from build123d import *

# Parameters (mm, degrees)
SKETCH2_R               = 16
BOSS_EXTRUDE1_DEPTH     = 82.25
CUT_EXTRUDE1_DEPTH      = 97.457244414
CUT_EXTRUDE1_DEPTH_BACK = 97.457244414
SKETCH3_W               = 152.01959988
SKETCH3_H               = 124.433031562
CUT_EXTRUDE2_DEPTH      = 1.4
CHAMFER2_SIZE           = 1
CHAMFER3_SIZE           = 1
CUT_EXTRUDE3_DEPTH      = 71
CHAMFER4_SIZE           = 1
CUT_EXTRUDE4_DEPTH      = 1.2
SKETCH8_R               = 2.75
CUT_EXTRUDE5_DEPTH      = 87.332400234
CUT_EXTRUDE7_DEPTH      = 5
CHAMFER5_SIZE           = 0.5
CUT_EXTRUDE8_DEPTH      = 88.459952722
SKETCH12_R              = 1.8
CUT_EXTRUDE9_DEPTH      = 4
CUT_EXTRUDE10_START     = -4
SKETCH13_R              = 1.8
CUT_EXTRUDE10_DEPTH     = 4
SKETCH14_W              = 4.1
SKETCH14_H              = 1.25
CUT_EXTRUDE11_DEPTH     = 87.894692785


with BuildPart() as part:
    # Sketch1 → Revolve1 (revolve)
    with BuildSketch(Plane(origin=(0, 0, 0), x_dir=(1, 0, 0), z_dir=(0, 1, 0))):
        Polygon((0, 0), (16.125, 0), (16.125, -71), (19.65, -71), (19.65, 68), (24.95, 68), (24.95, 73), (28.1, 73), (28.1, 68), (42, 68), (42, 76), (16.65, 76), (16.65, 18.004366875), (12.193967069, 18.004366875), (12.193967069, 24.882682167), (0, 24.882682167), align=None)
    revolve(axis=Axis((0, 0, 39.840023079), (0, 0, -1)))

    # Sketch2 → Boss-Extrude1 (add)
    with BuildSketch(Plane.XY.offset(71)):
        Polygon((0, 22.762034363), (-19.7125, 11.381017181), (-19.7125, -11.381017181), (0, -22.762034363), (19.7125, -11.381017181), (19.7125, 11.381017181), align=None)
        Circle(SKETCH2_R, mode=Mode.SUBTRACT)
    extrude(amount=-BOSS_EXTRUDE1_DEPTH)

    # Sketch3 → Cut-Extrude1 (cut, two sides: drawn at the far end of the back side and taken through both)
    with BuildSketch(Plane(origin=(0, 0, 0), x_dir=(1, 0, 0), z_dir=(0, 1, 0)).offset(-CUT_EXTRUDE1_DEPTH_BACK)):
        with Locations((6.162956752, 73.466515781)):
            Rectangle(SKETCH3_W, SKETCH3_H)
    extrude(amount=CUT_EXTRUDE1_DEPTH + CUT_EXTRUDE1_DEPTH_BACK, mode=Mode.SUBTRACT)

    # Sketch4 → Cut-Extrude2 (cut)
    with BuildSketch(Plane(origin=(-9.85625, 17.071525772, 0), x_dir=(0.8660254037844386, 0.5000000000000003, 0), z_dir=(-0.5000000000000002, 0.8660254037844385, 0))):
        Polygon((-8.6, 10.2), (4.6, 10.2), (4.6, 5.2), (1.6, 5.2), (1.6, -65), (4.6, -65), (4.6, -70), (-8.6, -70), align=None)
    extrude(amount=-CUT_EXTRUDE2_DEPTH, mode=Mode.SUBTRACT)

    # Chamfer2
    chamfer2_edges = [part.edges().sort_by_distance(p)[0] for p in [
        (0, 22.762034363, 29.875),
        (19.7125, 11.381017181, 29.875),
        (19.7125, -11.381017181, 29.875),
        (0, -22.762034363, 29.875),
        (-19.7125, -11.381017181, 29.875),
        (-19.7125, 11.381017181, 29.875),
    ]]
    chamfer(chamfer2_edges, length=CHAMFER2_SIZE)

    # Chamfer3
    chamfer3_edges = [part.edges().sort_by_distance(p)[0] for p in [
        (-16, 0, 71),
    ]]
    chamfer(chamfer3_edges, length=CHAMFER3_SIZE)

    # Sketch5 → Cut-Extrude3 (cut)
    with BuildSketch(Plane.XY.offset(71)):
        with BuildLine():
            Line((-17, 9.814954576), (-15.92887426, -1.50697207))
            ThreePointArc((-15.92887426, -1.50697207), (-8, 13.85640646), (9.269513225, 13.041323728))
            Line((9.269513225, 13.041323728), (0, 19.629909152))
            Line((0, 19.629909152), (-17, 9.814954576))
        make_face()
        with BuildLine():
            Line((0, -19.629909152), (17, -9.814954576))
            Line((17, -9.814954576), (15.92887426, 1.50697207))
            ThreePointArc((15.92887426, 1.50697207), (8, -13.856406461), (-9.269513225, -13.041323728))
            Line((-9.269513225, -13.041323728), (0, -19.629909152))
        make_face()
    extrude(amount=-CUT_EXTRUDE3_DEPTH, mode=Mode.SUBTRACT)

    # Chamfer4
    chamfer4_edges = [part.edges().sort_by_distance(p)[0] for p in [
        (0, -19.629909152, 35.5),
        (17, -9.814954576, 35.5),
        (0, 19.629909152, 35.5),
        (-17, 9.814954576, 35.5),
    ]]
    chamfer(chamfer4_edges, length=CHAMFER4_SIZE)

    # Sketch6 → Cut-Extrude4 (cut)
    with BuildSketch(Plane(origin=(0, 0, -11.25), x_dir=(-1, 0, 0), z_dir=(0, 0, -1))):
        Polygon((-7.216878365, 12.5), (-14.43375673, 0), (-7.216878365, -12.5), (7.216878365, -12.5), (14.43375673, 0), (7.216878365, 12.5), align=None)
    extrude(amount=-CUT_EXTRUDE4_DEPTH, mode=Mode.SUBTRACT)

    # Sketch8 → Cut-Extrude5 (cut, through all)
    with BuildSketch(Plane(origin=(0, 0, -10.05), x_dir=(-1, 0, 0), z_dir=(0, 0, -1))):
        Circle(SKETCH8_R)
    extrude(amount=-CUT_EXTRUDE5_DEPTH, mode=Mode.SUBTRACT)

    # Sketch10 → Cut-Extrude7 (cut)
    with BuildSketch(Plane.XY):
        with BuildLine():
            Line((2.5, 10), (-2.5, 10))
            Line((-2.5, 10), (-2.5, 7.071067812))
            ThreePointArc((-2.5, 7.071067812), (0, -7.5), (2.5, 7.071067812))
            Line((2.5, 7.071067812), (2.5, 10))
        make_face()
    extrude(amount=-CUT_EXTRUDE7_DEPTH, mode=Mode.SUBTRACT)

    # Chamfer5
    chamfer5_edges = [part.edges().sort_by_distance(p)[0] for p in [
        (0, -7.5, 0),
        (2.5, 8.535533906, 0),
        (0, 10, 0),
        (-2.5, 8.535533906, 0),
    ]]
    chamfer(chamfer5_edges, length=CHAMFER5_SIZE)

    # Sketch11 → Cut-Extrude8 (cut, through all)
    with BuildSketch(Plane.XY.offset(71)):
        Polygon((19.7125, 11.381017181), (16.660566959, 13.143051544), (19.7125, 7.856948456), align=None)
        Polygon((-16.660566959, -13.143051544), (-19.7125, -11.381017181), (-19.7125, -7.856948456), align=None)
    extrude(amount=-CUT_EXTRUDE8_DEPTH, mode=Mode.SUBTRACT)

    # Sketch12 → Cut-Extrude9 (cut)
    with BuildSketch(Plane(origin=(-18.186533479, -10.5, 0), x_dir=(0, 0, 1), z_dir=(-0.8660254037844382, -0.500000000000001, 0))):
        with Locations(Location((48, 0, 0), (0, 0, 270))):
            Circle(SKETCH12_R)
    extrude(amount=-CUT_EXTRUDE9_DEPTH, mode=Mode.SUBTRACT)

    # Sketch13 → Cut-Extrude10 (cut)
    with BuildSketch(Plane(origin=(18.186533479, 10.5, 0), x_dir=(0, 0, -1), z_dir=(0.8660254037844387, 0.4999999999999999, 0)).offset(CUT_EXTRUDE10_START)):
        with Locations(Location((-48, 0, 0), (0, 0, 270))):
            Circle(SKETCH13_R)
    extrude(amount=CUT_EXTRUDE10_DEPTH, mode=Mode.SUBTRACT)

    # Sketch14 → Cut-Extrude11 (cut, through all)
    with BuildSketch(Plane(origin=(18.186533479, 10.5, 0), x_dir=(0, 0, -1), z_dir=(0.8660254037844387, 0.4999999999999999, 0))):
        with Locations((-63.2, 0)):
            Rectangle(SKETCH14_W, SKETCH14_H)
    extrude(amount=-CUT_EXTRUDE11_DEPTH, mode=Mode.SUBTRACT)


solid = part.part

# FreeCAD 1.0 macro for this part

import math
import FreeCAD as App
import Part
import Sketcher

V = App.Vector
Q = App.Units.Quantity


def edges_at(feature, points):
    """Names of the edges that pass closest to the given points."""
    edges = feature.Shape.Edges
    near = lambda p: min(range(len(edges)), key=lambda i: edges[i].distToShape(Part.Vertex(*p))[0])
    return sorted({f"Edge{near(p) + 1}" for p in points})


def add_polygon(sketch, points):
    """Adds a closed chain of lines whose ends are joined by coincident constraints."""
    first, n = sketch.GeometryCount, len(points)
    for a, b in zip(points, points[1:] + points[:1]):
        sketch.addGeometry(Part.LineSegment(App.Vector(*a, 0), App.Vector(*b, 0)), False)
    for i in range(n):
        sketch.addConstraint(Sketcher.Constraint("Coincident", first + i, 2, first + (i + 1) % n, 1))

doc = App.newDocument("Part")
params = doc.addObject("Spreadsheet::Sheet", "Params")
for row, (alias, value) in enumerate([
    ("sketch1_height", "71 mm"),
    ("sketch1_height2", "139 mm"),
    ("sketch1_height3", "5 mm"),
    ("sketch1_height4", "8 mm"),
    ("sketch1_width", "5.3 mm"),
    ("revolution_angle", "360 deg"),
    ("sketch2_diameter", "32 mm"),
    ("pad1_length", "82.25 mm"),
    ("sketch4_width", "3 mm"),
    ("sketch4_height", "5 mm"),
    ("sketch4_width2", "13.2 mm"),
    ("sketch4_height2", "80.2 mm"),
    ("pocket2_length", "1.4 mm"),
    ("chamfer_size", "1 mm"),
    ("chamfer2_size", "1 mm"),
    ("sketch5_radius", "16 mm"),
    ("pocket3_length", "71 mm"),
    ("chamfer3_size", "1 mm"),
    ("pocket4_length", "1.2 mm"),
    ("sketch7_diameter", "5.5 mm"),
    ("sketch8_radius", "7.5 mm"),
    ("sketch8_width", "5 mm"),
    ("pocket6_length", "5 mm"),
    ("chamfer4_size", "0.5 mm"),
    ("sketch10_diameter", "3.6 mm"),
    ("pocket8_length", "4 mm"),
    ("sketch11_diameter", "3.6 mm"),
    ("pocket9_length", "4 mm"),
    ("sketch12_width", "4.1 mm"),
    ("sketch12_height", "1.25 mm"),
], start=1):
    params.set(f"A{row}", alias)
    params.set(f"B{row}", "=" + value)
    params.setAlias(f"B{row}", alias)

body = doc.addObject("PartDesign::Body", "Body")

# Sketch on XZ plane
sketch1 = body.newObject("Sketcher::SketchObject", "Sketch")
sketch1.AttachmentSupport = (doc.getObject("XZ_Plane"), [""])
sketch1.MapMode = "FlatFace"
add_polygon(sketch1, [(0, 0), (16.1, 0), (16.1, 71), (19.6, 71), (19.6, -68), (24.9, -68), (24.9, -73), (28.1, -73), (28.1, -68), (42, -68), (42, -76), (16.6, -76), (16.6, -18), (12.2, -18), (12.2, -24.9), (0, -24.9)])  # lines 0-15
sketch1.addConstraint(Sketcher.Constraint("Horizontal", 0))
sketch1.addConstraint(Sketcher.Constraint("Vertical", 1))
sketch1.addConstraint(Sketcher.Constraint("Horizontal", 2))
sketch1.addConstraint(Sketcher.Constraint("Vertical", 3))
sketch1.addConstraint(Sketcher.Constraint("Horizontal", 4))
sketch1.addConstraint(Sketcher.Constraint("Vertical", 5))
sketch1.addConstraint(Sketcher.Constraint("Horizontal", 6))
sketch1.addConstraint(Sketcher.Constraint("Vertical", 7))
sketch1.addConstraint(Sketcher.Constraint("Horizontal", 8))
sketch1.addConstraint(Sketcher.Constraint("Vertical", 9))
sketch1.addConstraint(Sketcher.Constraint("Horizontal", 10))
sketch1.addConstraint(Sketcher.Constraint("Vertical", 11))
sketch1.addConstraint(Sketcher.Constraint("Horizontal", 12))
sketch1.addConstraint(Sketcher.Constraint("Vertical", 13))
sketch1.addConstraint(Sketcher.Constraint("Horizontal", 14))
sketch1.addConstraint(Sketcher.Constraint("Vertical", 15))
sketch1.addConstraint(Sketcher.Constraint("Coincident", 15, 2, -1, 1))
sketch1.addConstraint(Sketcher.Constraint("Horizontal", 4, 2, 7, 2))
sketch1.addConstraint(Sketcher.Constraint("DistanceY", 1, 1, 1, 2, 71.0))
sketch1.addConstraint(Sketcher.Constraint("DistanceY", 3, 2, 3, 1, 139.0))
sketch1.addConstraint(Sketcher.Constraint("DistanceY", 5, 2, 5, 1, 5.0))
sketch1.addConstraint(Sketcher.Constraint("DistanceY", 9, 2, 9, 1, 8.0))
sketch1.addConstraint(Sketcher.Constraint("DistanceX", 4, 1, 4, 2, 5.3))
sketch1.addConstraint(Sketcher.Constraint("DistanceX", 8, 1, 8, 2, 13.9))
sketch1.addConstraint(Sketcher.Constraint("DistanceX", -1, 1, 8, 2, 42.0))
sketch1.addConstraint(Sketcher.Constraint("DistanceX", 10, 2, 3, 2, 3.0))
sketch1.addConstraint(Sketcher.Constraint("DistanceX", 6, 1, 6, 2, 3.15))
sketch1.addConstraint(Sketcher.Constraint("DistanceX", 0, 1, 0, 2, 16.125))
sketch1.addConstraint(Sketcher.Constraint("DistanceX", 12, 2, 12, 1, 4.456033))
sketch1.addConstraint(Sketcher.Constraint("DistanceY", 11, 1, 11, 2, 57.995633))
sketch1.addConstraint(Sketcher.Constraint("DistanceY", 13, 2, 13, 1, 6.878315))
sketch1.setExpression("Constraints[34]", "Params.sketch1_height")
sketch1.setExpression("Constraints[35]", "Params.sketch1_height2")
sketch1.setExpression("Constraints[36]", "Params.sketch1_height3")
sketch1.setExpression("Constraints[37]", "Params.sketch1_height4")
sketch1.setExpression("Constraints[38]", "Params.sketch1_width")
revolution = body.newObject("PartDesign::Revolution", "Revolution")
revolution.Profile = sketch1
revolution.ReferenceAxis = (sketch1, ["V_Axis"])
revolution.setExpression("Angle", "Params.revolution_angle")

# Sketch on XY plane
sketch2 = body.newObject("Sketcher::SketchObject", "Sketch001")
sketch2.AttachmentSupport = (doc.getObject("XY_Plane"), [""])
sketch2.MapMode = "FlatFace"
sketch2.AttachmentOffset = App.Placement(V(0, 0, 71), App.Rotation())
add_polygon(sketch2, [(0, 23), (-20, 11), (-20, -11), (0, -23), (20, -11), (20, 11)])  # lines 0-5
sketch2.addGeometry(Part.Circle(V(0, 0, 0), V(0, 0, 1), 16), False)  # 6
sketch2.addConstraint(Sketcher.Constraint("Vertical", 1))
sketch2.addConstraint(Sketcher.Constraint("Vertical", 4))
sketch2.addConstraint(Sketcher.Constraint("Coincident", 6, 3, -1, 1))
sketch2.addConstraint(Sketcher.Constraint("Symmetric", 0, 2, 3, 2, -1, 1))
sketch2.addConstraint(Sketcher.Constraint("Symmetric", 2, 2, 5, 2, -1, 1))
sketch2.addConstraint(Sketcher.Constraint("PointOnObject", 2, 2, -2))
sketch2.addConstraint(Sketcher.Constraint("Parallel", 2, 5))
sketch2.addConstraint(Sketcher.Constraint("Horizontal", 1, 2, 3, 2))
sketch2.addConstraint(Sketcher.Constraint("Diameter", 6, 32.0))
sketch2.addConstraint(Sketcher.Constraint("Angle", 0, Q("-150 deg")))
sketch2.addConstraint(Sketcher.Constraint("DistanceX", 1, 2, 3, 2, 39.425))
sketch2.addConstraint(Sketcher.Constraint("DistanceY", 1, 2, 1, 1, 22.762034))
sketch2.setExpression("Constraints[14]", "Params.sketch2_diameter")
pad1 = body.newObject("PartDesign::Pad", "Pad")
pad1.Profile = sketch2
pad1.setExpression("Length", "Params.pad1_length")
pad1.Reversed = True

# Sketch on XZ plane
sketch3 = body.newObject("Sketcher::SketchObject", "Sketch002")
sketch3.AttachmentSupport = (doc.getObject("XZ_Plane"), [""])
sketch3.MapMode = "FlatFace"
add_polygon(sketch3, [(-70, -136), (-70, -11), (82, -11), (82, -136)])  # lines 0-3
sketch3.addConstraint(Sketcher.Constraint("Vertical", 0))
sketch3.addConstraint(Sketcher.Constraint("Horizontal", 1))
sketch3.addConstraint(Sketcher.Constraint("Vertical", 2))
sketch3.addConstraint(Sketcher.Constraint("Horizontal", 3))
sketch3.addConstraint(Sketcher.Constraint("DistanceY", 0, 2, -1, 1, 11.25))
sketch3.addConstraint(Sketcher.Constraint("DistanceX", 1, 1, 1, 2, 152.0196))
sketch3.addConstraint(Sketcher.Constraint("DistanceY", 0, 1, 0, 2, 124.433032))
sketch3.addConstraint(Sketcher.Constraint("DistanceX", 0, 2, -1, 1, 69.846843))
pocket1 = body.newObject("PartDesign::Pocket", "Pocket")
pocket1.Profile = sketch3
pocket1.Type = "ThroughAll"
pocket1.Midplane = True

# Sketch on an angled plane
sketch4 = body.newObject("Sketcher::SketchObject", "Sketch003")
sketch4.Placement = App.Placement(V(-9.85625, 17.071526, 0), App.Rotation(V(0.866025404, 0.5, 0), V(0, 0, -1), V(-0.5, 0.866025404, 0), "ZXY"))
add_polygon(sketch4, [(4.6, 10.2), (-8.6, 10.2), (-8.6, -70), (4.6, -70), (4.6, -65), (1.6, -65), (1.6, 5.2), (4.6, 5.2)])  # lines 0-7
sketch4.addConstraint(Sketcher.Constraint("Horizontal", 0))
sketch4.addConstraint(Sketcher.Constraint("Vertical", 1))
sketch4.addConstraint(Sketcher.Constraint("Horizontal", 2))
sketch4.addConstraint(Sketcher.Constraint("Vertical", 3))
sketch4.addConstraint(Sketcher.Constraint("Horizontal", 4))
sketch4.addConstraint(Sketcher.Constraint("Vertical", 5))
sketch4.addConstraint(Sketcher.Constraint("Horizontal", 6))
sketch4.addConstraint(Sketcher.Constraint("Vertical", 7))
sketch4.addConstraint(Sketcher.Constraint("Vertical", 3, 2, 6, 2))
sketch4.addConstraint(Sketcher.Constraint("Equal", 3, 7))
sketch4.addConstraint(Sketcher.Constraint("DistanceX", 4, 2, 4, 1, 3.0))
sketch4.addConstraint(Sketcher.Constraint("DistanceY", 3, 1, 3, 2, 5.0))
sketch4.addConstraint(Sketcher.Constraint("DistanceX", 0, 2, 0, 1, 13.2))
sketch4.addConstraint(Sketcher.Constraint("DistanceY", 1, 2, 1, 1, 80.2))
sketch4.addConstraint(Sketcher.Constraint("DistanceY", 1, 2, -1, 1, 70.0))
sketch4.addConstraint(Sketcher.Constraint("DistanceX", 0, 2, -1, 1, 8.6))
sketch4.setExpression("Constraints[18]", "Params.sketch4_width")
sketch4.setExpression("Constraints[19]", "Params.sketch4_height")
sketch4.setExpression("Constraints[20]", "Params.sketch4_width2")
sketch4.setExpression("Constraints[21]", "Params.sketch4_height2")
pocket2 = body.newObject("PartDesign::Pocket", "Pocket001")
pocket2.Profile = sketch4
pocket2.setExpression("Length", "Params.pocket2_length")
doc.recompute()

chamfer = body.newObject("PartDesign::Chamfer", "Chamfer")
chamfer.Base = (pocket2, edges_at(pocket2, [
    (0, 22.762, 29.875),
    (19.712, 11.381, 29.875),
    (19.712, -11.381, 29.875),
    (0, -22.762, 29.875),
    (-19.712, -11.381, 29.875),
    (-19.712, 11.381, 29.875),
]))
chamfer.setExpression("Size", "Params.chamfer_size")
doc.recompute()

chamfer2 = body.newObject("PartDesign::Chamfer", "Chamfer001")
chamfer2.Base = (chamfer, edges_at(chamfer, [(-16, 0, 71)]))
chamfer2.setExpression("Size", "Params.chamfer2_size")

# Sketch on XY plane
sketch5 = body.newObject("Sketcher::SketchObject", "Sketch004")
sketch5.AttachmentSupport = (doc.getObject("XY_Plane"), [""])
sketch5.MapMode = "FlatFace"
sketch5.AttachmentOffset = App.Placement(V(0, 0, 71), App.Rotation())
sketch5.addGeometry(Part.LineSegment(V(-17, 10, 0), V(-16, -2, 0)), False)
sketch5.addGeometry(Part.ArcOfCircle(Part.Circle(V(0, 0, 0), V(0, 0, 1), 16), math.radians(55), math.radians(185)), False)
sketch5.addGeometry(Part.LineSegment(V(9, 13, 0), V(0, 20, 0)), False)
sketch5.addGeometry(Part.LineSegment(V(0, 20, 0), V(-17, 10, 0)), False)
sketch5.addGeometry(Part.LineSegment(V(0, -20, 0), V(17, -10, 0)), False)
sketch5.addGeometry(Part.LineSegment(V(17, -10, 0), V(16, 2, 0)), False)
sketch5.addGeometry(Part.ArcOfCircle(Part.Circle(V(0, 0, 0), V(0, 0, 1), 16), math.radians(-125), math.radians(5)), False)
sketch5.addGeometry(Part.LineSegment(V(-9, -13, 0), V(0, -20, 0)), False)
sketch5.addConstraint(Sketcher.Constraint("Tangent", 0, 2, 1, 2))
sketch5.addConstraint(Sketcher.Constraint("Tangent", 1, 1, 2, 1))
sketch5.addConstraint(Sketcher.Constraint("Coincident", 2, 2, 3, 1))
sketch5.addConstraint(Sketcher.Constraint("Coincident", 3, 2, 0, 1))
sketch5.addConstraint(Sketcher.Constraint("Coincident", 4, 2, 5, 1))
sketch5.addConstraint(Sketcher.Constraint("Tangent", 5, 2, 6, 2))
sketch5.addConstraint(Sketcher.Constraint("Tangent", 6, 1, 7, 1))
sketch5.addConstraint(Sketcher.Constraint("Coincident", 7, 2, 4, 1))
sketch5.addConstraint(Sketcher.Constraint("Coincident", 1, 3, -1, 1))
sketch5.addConstraint(Sketcher.Constraint("Coincident", 6, 3, -1, 1))
sketch5.addConstraint(Sketcher.Constraint("Equal", 1, 6))
sketch5.addConstraint(Sketcher.Constraint("Symmetric", 3, 2, 4, 2, -1, 1))
sketch5.addConstraint(Sketcher.Constraint("Symmetric", 2, 2, 7, 2, -1, 1))
sketch5.addConstraint(Sketcher.Constraint("PointOnObject", 2, 2, -2))
sketch5.addConstraint(Sketcher.Constraint("Equal", 0, 2))
sketch5.addConstraint(Sketcher.Constraint("Radius", 1, 16.0))
sketch5.addConstraint(Sketcher.Constraint("Angle", 3, Q("-150 deg")))
sketch5.addConstraint(Sketcher.Constraint("DistanceX", 3, 2, -1, 1, 17.0))
sketch5.setExpression("Constraints[15]", "Params.sketch5_radius")
pocket3 = body.newObject("PartDesign::Pocket", "Pocket002")
pocket3.Profile = sketch5
pocket3.setExpression("Length", "Params.pocket3_length")
doc.recompute()

chamfer3 = body.newObject("PartDesign::Chamfer", "Chamfer002")
chamfer3.Base = (pocket3, edges_at(pocket3, [
    (0, -19.63, 35.5),
    (17, -9.815, 35.5),
    (0, 19.63, 35.5),
    (-17, 9.815, 35.5),
]))
chamfer3.setExpression("Size", "Params.chamfer3_size")

# Sketch on XY plane
sketch6 = body.newObject("Sketcher::SketchObject", "Sketch005")
sketch6.AttachmentSupport = (doc.getObject("XY_Plane"), [""])
sketch6.MapMode = "FlatFace"
sketch6.AttachmentOffset = App.Placement(V(0, 0, -11.25), App.Rotation())
add_polygon(sketch6, [(7, 12), (14, 0), (7, -12), (-7, -12), (-14, 0), (-7, 12)])  # lines 0-5
sketch6.addConstraint(Sketcher.Constraint("Horizontal", 2))
sketch6.addConstraint(Sketcher.Constraint("Horizontal", 5))
sketch6.addConstraint(Sketcher.Constraint("Symmetric", 0, 2, 3, 2, -1, 1))
sketch6.addConstraint(Sketcher.Constraint("Symmetric", 1, 2, 4, 2, -1, 1))
sketch6.addConstraint(Sketcher.Constraint("PointOnObject", 0, 2, -1))
sketch6.addConstraint(Sketcher.Constraint("Parallel", 0, 3))
sketch6.addConstraint(Sketcher.Constraint("Vertical", 2, 2, 4, 2))
sketch6.addConstraint(Sketcher.Constraint("Angle", 0, Q("-60 deg")))
sketch6.addConstraint(Sketcher.Constraint("DistanceY", 2, 2, 4, 2, 25.0))
sketch6.addConstraint(Sketcher.Constraint("DistanceX", 2, 2, 2, 1, 14.433757))
pocket4 = body.newObject("PartDesign::Pocket", "Pocket003")
pocket4.Profile = sketch6
pocket4.setExpression("Length", "Params.pocket4_length")
pocket4.Reversed = True

# Sketch on XY plane
sketch7 = body.newObject("Sketcher::SketchObject", "Sketch006")
sketch7.AttachmentSupport = (doc.getObject("XY_Plane"), [""])
sketch7.MapMode = "FlatFace"
sketch7.AttachmentOffset = App.Placement(V(0, 0, -10.05), App.Rotation())
sketch7.addGeometry(Part.Circle(V(0, 0, 0), V(0, 0, 1), 2.8), False)
sketch7.addConstraint(Sketcher.Constraint("Coincident", 0, 3, -1, 1))
sketch7.addConstraint(Sketcher.Constraint("Diameter", 0, 5.5))
sketch7.setExpression("Constraints[1]", "Params.sketch7_diameter")
pocket5 = body.newObject("PartDesign::Pocket", "Pocket004")
pocket5.Profile = sketch7
pocket5.Type = "ThroughAll"
pocket5.Reversed = True

# Sketch on XY plane
sketch8 = body.newObject("Sketcher::SketchObject", "Sketch007")
sketch8.AttachmentSupport = (doc.getObject("XY_Plane"), [""])
sketch8.MapMode = "FlatFace"
sketch8.addGeometry(Part.LineSegment(V(2.5, 10, 0), V(-2.5, 10, 0)), False)
sketch8.addGeometry(Part.LineSegment(V(-2.5, 10, 0), V(-2.5, 7.1, 0)), False)
sketch8.addGeometry(Part.ArcOfCircle(Part.Circle(V(0, 0, 0), V(0, 0, 1), 7.5), math.radians(109), math.radians(431)), False)
sketch8.addGeometry(Part.LineSegment(V(2.5, 7.1, 0), V(2.5, 10, 0)), False)
sketch8.addConstraint(Sketcher.Constraint("Coincident", 0, 2, 1, 1))
sketch8.addConstraint(Sketcher.Constraint("Coincident", 1, 2, 2, 1))
sketch8.addConstraint(Sketcher.Constraint("Coincident", 2, 2, 3, 1))
sketch8.addConstraint(Sketcher.Constraint("Coincident", 3, 2, 0, 1))
sketch8.addConstraint(Sketcher.Constraint("Horizontal", 0))
sketch8.addConstraint(Sketcher.Constraint("Vertical", 1))
sketch8.addConstraint(Sketcher.Constraint("Vertical", 3))
sketch8.addConstraint(Sketcher.Constraint("Coincident", 2, 3, -1, 1))
sketch8.addConstraint(Sketcher.Constraint("Horizontal", 1, 2, 2, 2))
sketch8.addConstraint(Sketcher.Constraint("Radius", 2, 7.5))
sketch8.addConstraint(Sketcher.Constraint("DistanceX", 0, 2, 0, 1, 5.0))
sketch8.addConstraint(Sketcher.Constraint("DistanceY", -1, 1, 0, 2, 10.0))
sketch8.setExpression("Constraints[9]", "Params.sketch8_radius")
sketch8.setExpression("Constraints[10]", "Params.sketch8_width")
pocket6 = body.newObject("PartDesign::Pocket", "Pocket005")
pocket6.Profile = sketch8
pocket6.setExpression("Length", "Params.pocket6_length")
doc.recompute()

chamfer4 = body.newObject("PartDesign::Chamfer", "Chamfer003")
chamfer4.Base = (pocket6, edges_at(pocket6, [
    (0, -7.5, 0),
    (2.5, 8.536, 0),
    (0, 10, 0),
    (-2.5, 8.536, 0),
]))
chamfer4.setExpression("Size", "Params.chamfer4_size")

# Sketch on XY plane
sketch9 = body.newObject("Sketcher::SketchObject", "Sketch008")
sketch9.AttachmentSupport = (doc.getObject("XY_Plane"), [""])
sketch9.MapMode = "FlatFace"
sketch9.AttachmentOffset = App.Placement(V(0, 0, 71), App.Rotation())
add_polygon(sketch9, [(19.7, 11.4), (16.7, 13.1), (19.7, 7.9)])  # lines 0-2
add_polygon(sketch9, [(-19.7, -11.4), (-16.7, -13.1), (-19.7, -7.9)])  # lines 3-5
sketch9.addConstraint(Sketcher.Constraint("Vertical", 2))
sketch9.addConstraint(Sketcher.Constraint("Vertical", 5))
sketch9.addConstraint(Sketcher.Constraint("Symmetric", 0, 2, 3, 2, -1, 1))
sketch9.addConstraint(Sketcher.Constraint("Symmetric", 1, 2, 4, 2, -1, 1))
sketch9.addConstraint(Sketcher.Constraint("Parallel", 0, 3))
sketch9.addConstraint(Sketcher.Constraint("Angle", 0, Q("150 deg")))
sketch9.addConstraint(Sketcher.Constraint("Angle", 1, Q("-60 deg")))
sketch9.addConstraint(Sketcher.Constraint("DistanceY", 3, 2, 1, 2, 21.0))
sketch9.addConstraint(Sketcher.Constraint("DistanceX", 4, 2, 1, 2, 39.425))
sketch9.addConstraint(Sketcher.Constraint("DistanceY", 2, 1, 2, 2, 3.524069))
pocket7 = body.newObject("PartDesign::Pocket", "Pocket006")
pocket7.Profile = sketch9
pocket7.Type = "ThroughAll"

# Sketch on an angled plane
sketch10 = body.newObject("Sketcher::SketchObject", "Sketch009")
sketch10.Placement = App.Placement(V(-18.186533, -10.5, 0), App.Rotation(V(0, 0, 1), V(-0.5, 0.866025404, 0), V(-0.866025404, -0.5, 0), "ZXY"))
sketch10.addGeometry(Part.Circle(V(48, 0, 0), V(0, 0, 1), 1.8), False)
sketch10.addConstraint(Sketcher.Constraint("PointOnObject", 0, 3, -1))
sketch10.addConstraint(Sketcher.Constraint("Diameter", 0, 3.6))
sketch10.addConstraint(Sketcher.Constraint("DistanceX", -1, 1, 0, 3, 48.0))
sketch10.setExpression("Constraints[1]", "Params.sketch10_diameter")
pocket8 = body.newObject("PartDesign::Pocket", "Pocket007")
pocket8.Profile = sketch10
pocket8.setExpression("Length", "Params.pocket8_length")

# Sketch on an angled plane
sketch11 = body.newObject("Sketcher::SketchObject", "Sketch010")
sketch11.Placement = App.Placement(V(14.722432, 8.5, 0), App.Rotation(V(0, 0, -1), V(-0.5, 0.866025404, 0), V(0.866025404, 0.5, 0), "ZXY"))
sketch11.addGeometry(Part.Circle(V(-48, 0, 0), V(0, 0, 1), 1.8), False)
sketch11.addConstraint(Sketcher.Constraint("PointOnObject", 0, 3, -1))
sketch11.addConstraint(Sketcher.Constraint("Diameter", 0, 3.6))
sketch11.addConstraint(Sketcher.Constraint("DistanceX", 0, 3, -1, 1, 48.0))
sketch11.setExpression("Constraints[1]", "Params.sketch11_diameter")
pocket9 = body.newObject("PartDesign::Pocket", "Pocket008")
pocket9.Profile = sketch11
pocket9.setExpression("Length", "Params.pocket9_length")
pocket9.Reversed = True

# Sketch on an angled plane
sketch12 = body.newObject("Sketcher::SketchObject", "Sketch011")
sketch12.Placement = App.Placement(V(18.186533, 10.5, 0), App.Rotation(V(0, 0, -1), V(-0.5, 0.866025404, 0), V(0.866025404, 0.5, 0), "ZXY"))
add_polygon(sketch12, [(-65.2, 0.6), (-65.2, -0.6), (-61.1, -0.6), (-61.1, 0.6)])  # lines 0-3
sketch12.addConstraint(Sketcher.Constraint("Vertical", 0))
sketch12.addConstraint(Sketcher.Constraint("Horizontal", 1))
sketch12.addConstraint(Sketcher.Constraint("Vertical", 2))
sketch12.addConstraint(Sketcher.Constraint("Horizontal", 3))
sketch12.addConstraint(Sketcher.Constraint("DistanceX", 1, 1, 1, 2, 4.1))
sketch12.addConstraint(Sketcher.Constraint("DistanceY", 0, 2, 0, 1, 1.25))
sketch12.addConstraint(Sketcher.Constraint("DistanceX", 0, 2, -1, 1, 65.25))
sketch12.addConstraint(Sketcher.Constraint("DistanceY", 0, 2, -1, 1, 0.625))
sketch12.setExpression("Constraints[8]", "Params.sketch12_width")
sketch12.setExpression("Constraints[9]", "Params.sketch12_height")
pocket10 = body.newObject("PartDesign::Pocket", "Pocket009")
pocket10.Profile = sketch12
pocket10.Type = "ThroughAll"

doc.recompute()
